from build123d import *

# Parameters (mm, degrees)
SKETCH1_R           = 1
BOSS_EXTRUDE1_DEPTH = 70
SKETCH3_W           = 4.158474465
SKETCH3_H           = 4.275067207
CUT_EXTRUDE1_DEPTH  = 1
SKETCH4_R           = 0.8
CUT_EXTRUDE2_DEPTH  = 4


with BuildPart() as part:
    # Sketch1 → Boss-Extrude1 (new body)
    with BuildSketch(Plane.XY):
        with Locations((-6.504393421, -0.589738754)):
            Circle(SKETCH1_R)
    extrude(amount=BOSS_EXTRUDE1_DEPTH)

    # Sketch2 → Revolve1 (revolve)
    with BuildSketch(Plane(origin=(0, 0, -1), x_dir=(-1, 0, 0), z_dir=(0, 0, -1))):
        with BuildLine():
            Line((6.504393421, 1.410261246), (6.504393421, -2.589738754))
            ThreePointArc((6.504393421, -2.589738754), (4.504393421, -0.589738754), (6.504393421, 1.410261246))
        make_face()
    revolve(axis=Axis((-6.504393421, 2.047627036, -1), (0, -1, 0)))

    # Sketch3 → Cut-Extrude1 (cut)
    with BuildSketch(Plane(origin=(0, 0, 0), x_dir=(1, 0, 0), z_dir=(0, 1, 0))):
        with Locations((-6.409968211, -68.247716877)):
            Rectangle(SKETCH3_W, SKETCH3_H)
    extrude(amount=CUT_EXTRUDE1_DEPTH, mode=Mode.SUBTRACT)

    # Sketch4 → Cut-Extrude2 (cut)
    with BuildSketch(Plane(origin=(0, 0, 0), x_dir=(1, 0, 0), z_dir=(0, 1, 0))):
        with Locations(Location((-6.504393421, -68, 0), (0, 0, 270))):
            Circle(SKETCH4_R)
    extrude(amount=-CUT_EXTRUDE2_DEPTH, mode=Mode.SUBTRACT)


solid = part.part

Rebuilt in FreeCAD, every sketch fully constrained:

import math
import FreeCAD as App
import Part
import Sketcher

doc = App.newDocument("Part")
body = doc.addObject("PartDesign::Body", "Body")

# Sketch on XY plane
sketch1 = doc.addObject("Sketcher::SketchObject", "Sketch")
body.addObject(sketch1)
sketch1.AttachmentSupport = (doc.XY_Plane, [""])
sketch1.MapMode = "FlatFace"
sketch1.addGeometry(Part.Circle(App.Vector(-6.5, -0.6, 0), App.Vector(0, 0, 1), 1), False)
sketch1.addConstraint(Sketcher.Constraint("Diameter", 0, 2.0))
sketch1.addConstraint(Sketcher.Constraint("DistanceY", 0, 3, -1, 1, 0.589739))
sketch1.addConstraint(Sketcher.Constraint("DistanceX", 0, 3, -1, 1, 6.504393))
pad1 = doc.addObject("PartDesign::Pad", "Pad")
body.addObject(pad1)
pad1.Profile = sketch1
pad1.Length = 70

# Sketch on XY plane
sketch2 = doc.addObject("Sketcher::SketchObject", "Sketch001")
body.addObject(sketch2)
sketch2.AttachmentSupport = (doc.XY_Plane, [""])
sketch2.MapMode = "FlatFace"
sketch2.AttachmentOffset = App.Placement(App.Vector(0, 0, -1), App.Rotation())
sketch2.addGeometry(Part.LineSegment(App.Vector(-6.5, -2.6, 0), App.Vector(-6.5, 1.4, 0)), False)
sketch2.addGeometry(Part.ArcOfCircle(Part.Circle(App.Vector(-6.5, -0.6, 0), App.Vector(0, 0, 1), 2), math.radians(-90), math.radians(90)), False)
sketch2.addGeometry(Part.LineSegment(App.Vector(-6.5, 1.4, 0), App.Vector(-6.5, -2.6, 0)), True)  # axis
sketch2.addConstraint(Sketcher.Constraint("Coincident", 0, 1, 1, 1))
sketch2.addConstraint(Sketcher.Constraint("Coincident", 1, 2, 0, 2))
sketch2.addConstraint(Sketcher.Constraint("Vertical", 0))
sketch2.addConstraint(Sketcher.Constraint("Vertical", 2))
sketch2.addConstraint(Sketcher.Constraint("Coincident", 2, 1, 1, 2))
sketch2.addConstraint(Sketcher.Constraint("Vertical", 1, 3, 0, 1))
sketch2.addConstraint(Sketcher.Constraint("Equal", 0, 2))
sketch2.addConstraint(Sketcher.Constraint("Radius", 1, 2.0))
sketch2.addConstraint(Sketcher.Constraint("DistanceY", 1, 3, -1, 1, 0.589739))
sketch2.addConstraint(Sketcher.Constraint("DistanceX", 1, 3, -1, 1, 6.504393))
revolution = doc.addObject("PartDesign::Revolution", "Revolution")
body.addObject(revolution)
revolution.Profile = sketch2
revolution.ReferenceAxis = (sketch2, ["Axis0"])
revolution.Angle = 360

# Sketch on XZ plane
sketch3 = doc.addObject("Sketcher::SketchObject", "Sketch002")
body.addObject(sketch3)
sketch3.AttachmentSupport = (doc.XZ_Plane, [""])
sketch3.MapMode = "FlatFace"
sketch3.addGeometry(Part.LineSegment(App.Vector(-8.5, 66.1, 0), App.Vector(-8.5, 70.4, 0)), False)
sketch3.addGeometry(Part.LineSegment(App.Vector(-8.5, 70.4, 0), App.Vector(-4.3, 70.4, 0)), False)
sketch3.addGeometry(Part.LineSegment(App.Vector(-4.3, 70.4, 0), App.Vector(-4.3, 66.1, 0)), False)
sketch3.addGeometry(Part.LineSegment(App.Vector(-4.3, 66.1, 0), App.Vector(-8.5, 66.1, 0)), False)
sketch3.addConstraint(Sketcher.Constraint("Coincident", 0, 2, 1, 1))
sketch3.addConstraint(Sketcher.Constraint("Coincident", 1, 2, 2, 1))
sketch3.addConstraint(Sketcher.Constraint("Coincident", 2, 2, 3, 1))
sketch3.addConstraint(Sketcher.Constraint("Coincident", 3, 2, 0, 1))
sketch3.addConstraint(Sketcher.Constraint("Vertical", 0))
sketch3.addConstraint(Sketcher.Constraint("Horizontal", 1))
sketch3.addConstraint(Sketcher.Constraint("Vertical", 2))
sketch3.addConstraint(Sketcher.Constraint("Horizontal", 3))
sketch3.addConstraint(Sketcher.Constraint("DistanceX", 1, 1, 1, 2, 4.158474))
sketch3.addConstraint(Sketcher.Constraint("DistanceY", 0, 1, 0, 2, 4.275067))
sketch3.addConstraint(Sketcher.Constraint("DistanceY", -1, 1, 0, 2, 70.38525))
sketch3.addConstraint(Sketcher.Constraint("DistanceX", 1, 2, -1, 1, 4.330731))
pocket1 = doc.addObject("PartDesign::Pocket", "Pocket")
body.addObject(pocket1)
pocket1.Profile = sketch3
pocket1.Length = 1

# Sketch on XZ plane
sketch4 = doc.addObject("Sketcher::SketchObject", "Sketch003")
body.addObject(sketch4)
sketch4.AttachmentSupport = (doc.XZ_Plane, [""])
sketch4.MapMode = "FlatFace"
sketch4.addGeometry(Part.Circle(App.Vector(-6.5, 68, 0), App.Vector(0, 0, 1), 0.8), False)
sketch4.addConstraint(Sketcher.Constraint("Diameter", 0, 1.6))
sketch4.addConstraint(Sketcher.Constraint("DistanceY", -1, 1, 0, 3, 68.0))
sketch4.addConstraint(Sketcher.Constraint("DistanceX", 0, 3, -1, 1, 6.504393))
pocket2 = doc.addObject("PartDesign::Pocket", "Pocket001")
body.addObject(pocket2)
pocket2.Profile = sketch4
pocket2.Length = 4
pocket2.Reversed = True

doc.recompute()
